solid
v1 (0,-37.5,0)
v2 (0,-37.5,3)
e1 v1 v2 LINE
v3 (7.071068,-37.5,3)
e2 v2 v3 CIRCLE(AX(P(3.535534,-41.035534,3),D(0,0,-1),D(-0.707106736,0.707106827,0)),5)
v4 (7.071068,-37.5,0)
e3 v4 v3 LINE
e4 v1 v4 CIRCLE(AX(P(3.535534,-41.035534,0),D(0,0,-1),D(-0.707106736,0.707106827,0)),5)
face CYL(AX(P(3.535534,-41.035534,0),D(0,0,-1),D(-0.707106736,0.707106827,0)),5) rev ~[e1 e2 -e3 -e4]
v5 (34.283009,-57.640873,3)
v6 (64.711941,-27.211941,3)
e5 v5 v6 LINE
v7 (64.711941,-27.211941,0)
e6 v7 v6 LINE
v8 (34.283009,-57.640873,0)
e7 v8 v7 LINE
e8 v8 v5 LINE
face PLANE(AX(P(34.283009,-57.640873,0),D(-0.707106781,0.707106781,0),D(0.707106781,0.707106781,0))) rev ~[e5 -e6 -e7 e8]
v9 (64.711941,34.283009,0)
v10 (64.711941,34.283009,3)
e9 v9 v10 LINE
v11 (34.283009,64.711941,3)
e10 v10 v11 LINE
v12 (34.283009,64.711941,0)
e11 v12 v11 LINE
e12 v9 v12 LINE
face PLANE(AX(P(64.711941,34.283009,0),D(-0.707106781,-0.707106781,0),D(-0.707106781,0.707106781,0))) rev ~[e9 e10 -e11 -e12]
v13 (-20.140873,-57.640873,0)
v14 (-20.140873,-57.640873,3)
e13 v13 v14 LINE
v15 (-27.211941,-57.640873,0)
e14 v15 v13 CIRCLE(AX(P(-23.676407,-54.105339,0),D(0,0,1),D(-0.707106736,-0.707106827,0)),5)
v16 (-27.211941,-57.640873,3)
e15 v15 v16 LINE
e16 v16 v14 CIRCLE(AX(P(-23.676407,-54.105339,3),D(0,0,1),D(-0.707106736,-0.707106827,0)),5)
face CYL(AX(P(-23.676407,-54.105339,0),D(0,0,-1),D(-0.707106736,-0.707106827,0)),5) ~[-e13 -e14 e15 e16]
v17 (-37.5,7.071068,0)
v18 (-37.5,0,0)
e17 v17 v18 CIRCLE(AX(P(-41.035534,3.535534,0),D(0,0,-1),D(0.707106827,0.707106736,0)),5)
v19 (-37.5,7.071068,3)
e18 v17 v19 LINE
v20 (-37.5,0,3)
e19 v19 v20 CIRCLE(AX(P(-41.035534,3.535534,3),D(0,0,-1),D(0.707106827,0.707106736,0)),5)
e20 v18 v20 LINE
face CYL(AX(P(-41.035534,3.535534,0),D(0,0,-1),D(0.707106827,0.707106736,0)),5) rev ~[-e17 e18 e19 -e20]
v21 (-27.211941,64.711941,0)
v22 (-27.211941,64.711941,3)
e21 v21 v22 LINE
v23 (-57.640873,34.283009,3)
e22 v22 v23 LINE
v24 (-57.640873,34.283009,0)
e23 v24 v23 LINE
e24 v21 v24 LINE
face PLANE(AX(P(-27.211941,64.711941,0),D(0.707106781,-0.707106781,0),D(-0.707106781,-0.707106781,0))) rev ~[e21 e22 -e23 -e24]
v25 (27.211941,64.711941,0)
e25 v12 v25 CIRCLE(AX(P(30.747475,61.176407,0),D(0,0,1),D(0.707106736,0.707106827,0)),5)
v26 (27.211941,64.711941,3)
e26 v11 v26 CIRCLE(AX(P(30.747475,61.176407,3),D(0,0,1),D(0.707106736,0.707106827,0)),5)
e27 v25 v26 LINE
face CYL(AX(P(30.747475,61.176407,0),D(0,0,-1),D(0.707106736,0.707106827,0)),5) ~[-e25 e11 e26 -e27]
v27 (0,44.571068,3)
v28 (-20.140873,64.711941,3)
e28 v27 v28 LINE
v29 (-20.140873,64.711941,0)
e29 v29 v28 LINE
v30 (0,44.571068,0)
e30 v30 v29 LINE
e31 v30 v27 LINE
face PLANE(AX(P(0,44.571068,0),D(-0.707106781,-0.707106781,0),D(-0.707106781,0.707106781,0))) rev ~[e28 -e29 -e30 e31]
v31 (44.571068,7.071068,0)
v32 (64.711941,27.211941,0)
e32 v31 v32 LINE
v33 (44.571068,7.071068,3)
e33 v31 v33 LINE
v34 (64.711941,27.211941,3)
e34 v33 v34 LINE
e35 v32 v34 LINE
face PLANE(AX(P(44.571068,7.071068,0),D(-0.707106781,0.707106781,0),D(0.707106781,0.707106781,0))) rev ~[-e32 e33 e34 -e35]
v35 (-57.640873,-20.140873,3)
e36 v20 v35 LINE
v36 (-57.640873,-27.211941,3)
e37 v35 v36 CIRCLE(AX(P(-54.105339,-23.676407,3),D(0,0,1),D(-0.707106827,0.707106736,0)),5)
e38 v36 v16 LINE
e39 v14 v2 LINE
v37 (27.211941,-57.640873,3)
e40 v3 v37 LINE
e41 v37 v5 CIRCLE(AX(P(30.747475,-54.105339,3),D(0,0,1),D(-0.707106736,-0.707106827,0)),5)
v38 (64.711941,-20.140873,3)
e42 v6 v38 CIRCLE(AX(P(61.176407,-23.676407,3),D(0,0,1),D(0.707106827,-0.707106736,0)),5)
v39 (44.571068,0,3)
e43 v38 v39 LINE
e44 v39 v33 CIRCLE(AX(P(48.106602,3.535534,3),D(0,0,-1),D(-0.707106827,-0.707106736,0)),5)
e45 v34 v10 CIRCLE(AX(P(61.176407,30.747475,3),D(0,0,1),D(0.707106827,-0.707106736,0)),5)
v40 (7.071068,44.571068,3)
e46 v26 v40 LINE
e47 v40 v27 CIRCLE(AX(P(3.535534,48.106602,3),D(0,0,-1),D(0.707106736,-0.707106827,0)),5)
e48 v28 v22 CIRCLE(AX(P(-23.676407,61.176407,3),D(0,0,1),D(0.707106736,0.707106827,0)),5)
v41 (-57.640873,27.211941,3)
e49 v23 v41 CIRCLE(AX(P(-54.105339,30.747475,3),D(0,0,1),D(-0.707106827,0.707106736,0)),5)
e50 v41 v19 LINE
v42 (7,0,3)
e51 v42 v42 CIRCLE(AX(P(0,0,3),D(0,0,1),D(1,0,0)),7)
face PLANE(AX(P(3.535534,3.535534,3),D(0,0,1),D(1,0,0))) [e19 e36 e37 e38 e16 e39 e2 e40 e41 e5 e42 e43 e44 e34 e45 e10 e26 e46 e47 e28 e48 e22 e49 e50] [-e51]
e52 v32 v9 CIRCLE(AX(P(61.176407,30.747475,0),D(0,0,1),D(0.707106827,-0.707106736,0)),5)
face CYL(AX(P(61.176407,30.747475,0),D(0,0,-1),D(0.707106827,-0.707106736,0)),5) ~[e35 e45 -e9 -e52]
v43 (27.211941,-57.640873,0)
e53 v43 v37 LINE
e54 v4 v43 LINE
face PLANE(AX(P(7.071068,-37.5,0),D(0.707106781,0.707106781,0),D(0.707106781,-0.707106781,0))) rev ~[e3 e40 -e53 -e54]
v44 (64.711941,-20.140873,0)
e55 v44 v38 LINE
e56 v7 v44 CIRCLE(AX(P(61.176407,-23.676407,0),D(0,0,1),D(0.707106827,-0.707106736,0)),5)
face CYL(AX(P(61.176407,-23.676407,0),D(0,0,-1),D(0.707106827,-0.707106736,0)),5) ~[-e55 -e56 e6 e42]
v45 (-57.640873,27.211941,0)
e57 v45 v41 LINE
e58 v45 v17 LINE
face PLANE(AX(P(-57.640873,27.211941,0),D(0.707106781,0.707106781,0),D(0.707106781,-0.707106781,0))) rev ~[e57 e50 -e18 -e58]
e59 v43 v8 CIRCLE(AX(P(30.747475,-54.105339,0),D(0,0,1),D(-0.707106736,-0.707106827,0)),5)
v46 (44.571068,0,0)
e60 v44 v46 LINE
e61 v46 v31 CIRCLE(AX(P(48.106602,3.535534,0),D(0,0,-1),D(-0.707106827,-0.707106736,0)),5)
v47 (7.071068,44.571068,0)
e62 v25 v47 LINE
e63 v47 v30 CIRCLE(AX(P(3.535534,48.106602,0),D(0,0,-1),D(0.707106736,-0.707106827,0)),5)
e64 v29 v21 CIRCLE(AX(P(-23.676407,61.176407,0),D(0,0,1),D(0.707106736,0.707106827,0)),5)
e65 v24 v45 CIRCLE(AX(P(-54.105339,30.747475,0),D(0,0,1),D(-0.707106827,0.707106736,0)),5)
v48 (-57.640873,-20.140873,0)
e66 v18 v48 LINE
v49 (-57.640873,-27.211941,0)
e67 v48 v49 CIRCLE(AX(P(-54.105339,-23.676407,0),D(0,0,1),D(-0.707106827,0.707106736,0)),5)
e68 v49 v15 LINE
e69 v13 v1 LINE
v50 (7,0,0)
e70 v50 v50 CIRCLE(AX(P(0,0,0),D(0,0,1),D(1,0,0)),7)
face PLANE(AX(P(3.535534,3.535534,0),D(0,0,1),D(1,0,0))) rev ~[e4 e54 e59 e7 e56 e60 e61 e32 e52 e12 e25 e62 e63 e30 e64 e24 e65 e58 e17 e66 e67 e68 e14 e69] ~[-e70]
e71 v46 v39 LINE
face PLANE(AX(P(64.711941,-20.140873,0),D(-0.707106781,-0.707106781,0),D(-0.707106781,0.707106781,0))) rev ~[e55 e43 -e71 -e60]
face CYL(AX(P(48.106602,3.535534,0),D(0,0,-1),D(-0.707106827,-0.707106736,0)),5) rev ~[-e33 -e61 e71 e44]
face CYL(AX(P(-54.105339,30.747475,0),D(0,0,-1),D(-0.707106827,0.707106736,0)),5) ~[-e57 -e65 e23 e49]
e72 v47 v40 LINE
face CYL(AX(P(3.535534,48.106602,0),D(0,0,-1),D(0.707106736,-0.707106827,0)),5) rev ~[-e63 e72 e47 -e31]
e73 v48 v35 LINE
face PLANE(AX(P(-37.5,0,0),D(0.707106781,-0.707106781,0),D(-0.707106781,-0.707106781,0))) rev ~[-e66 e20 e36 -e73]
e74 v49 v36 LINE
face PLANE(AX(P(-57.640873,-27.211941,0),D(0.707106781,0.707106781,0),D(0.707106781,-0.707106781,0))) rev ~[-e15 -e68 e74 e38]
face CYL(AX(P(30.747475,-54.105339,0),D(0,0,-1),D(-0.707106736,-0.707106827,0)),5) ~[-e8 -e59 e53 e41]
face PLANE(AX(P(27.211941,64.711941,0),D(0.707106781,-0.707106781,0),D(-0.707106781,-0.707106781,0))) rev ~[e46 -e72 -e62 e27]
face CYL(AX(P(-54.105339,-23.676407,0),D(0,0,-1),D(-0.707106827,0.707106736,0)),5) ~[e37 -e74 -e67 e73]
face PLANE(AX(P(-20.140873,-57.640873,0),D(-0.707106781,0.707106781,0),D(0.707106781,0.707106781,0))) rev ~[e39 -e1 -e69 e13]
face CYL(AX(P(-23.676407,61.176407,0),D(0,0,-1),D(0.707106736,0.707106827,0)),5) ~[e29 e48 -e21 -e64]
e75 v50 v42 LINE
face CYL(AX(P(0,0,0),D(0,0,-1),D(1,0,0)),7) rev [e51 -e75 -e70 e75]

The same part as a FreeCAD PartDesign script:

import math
import FreeCAD as App
import Part
import Sketcher
from FreeCAD import Vector
Q = App.Units.Quantity

doc = App.newDocument("Part")
body = doc.addObject("PartDesign::Body", "Body")

sketch1 = doc.addObject("Sketcher::SketchObject", "Sketch")
body.addObject(sketch1)
sketch1.AttachmentSupport = (doc.XY_Plane, [""])
sketch1.MapMode = "FlatFace"
sketch1.addGeometry([
    Part.ArcOfCircle(Part.Circle(Vector(48, 4, 0), Vector(0, 0, 1), 5), math.radians(135), math.radians(225)),
    Part.LineSegment(Vector(45, 7, 0), Vector(65, 27, 0)),
    Part.ArcOfCircle(Part.Circle(Vector(61, 31, 0), Vector(0, 0, 1), 5), math.radians(-45), math.radians(45)),
    Part.LineSegment(Vector(65, 34, 0), Vector(34, 65, 0)),
    Part.ArcOfCircle(Part.Circle(Vector(31, 61, 0), Vector(0, 0, 1), 5), math.radians(45), math.radians(135)),
    Part.LineSegment(Vector(27, 65, 0), Vector(7, 45, 0)),
    Part.ArcOfCircle(Part.Circle(Vector(4, 48, 0), Vector(0, 0, 1), 5), math.radians(-135), math.radians(-45)),
    Part.LineSegment(Vector(0, 45, 0), Vector(-20, 65, 0)),
    Part.ArcOfCircle(Part.Circle(Vector(-24, 61, 0), Vector(0, 0, 1), 5), math.radians(45), math.radians(135)),
    Part.LineSegment(Vector(-27, 65, 0), Vector(-58, 34, 0)),
    Part.ArcOfCircle(Part.Circle(Vector(-54, 31, 0), Vector(0, 0, 1), 5), math.radians(135), math.radians(225)),
    Part.LineSegment(Vector(-58, 27, 0), Vector(-38, 7, 0)),
    Part.ArcOfCircle(Part.Circle(Vector(-41, 4, 0), Vector(0, 0, 1), 5), math.radians(-45), math.radians(45)),
    Part.LineSegment(Vector(-38, 0, 0), Vector(-58, -20, 0)),
    Part.ArcOfCircle(Part.Circle(Vector(-54, -24, 0), Vector(0, 0, 1), 5), math.radians(135), math.radians(225)),
    Part.LineSegment(Vector(-58, -27, 0), Vector(-27, -58, 0)),
    Part.ArcOfCircle(Part.Circle(Vector(-24, -54, 0), Vector(0, 0, 1), 5), math.radians(-135), math.radians(-45)),
    Part.LineSegment(Vector(-20, -58, 0), Vector(0, -38, 0)),
    Part.ArcOfCircle(Part.Circle(Vector(4, -41, 0), Vector(0, 0, 1), 5), math.radians(45), math.radians(135)),
    Part.LineSegment(Vector(7, -38, 0), Vector(27, -58, 0)),
    Part.ArcOfCircle(Part.Circle(Vector(31, -54, 0), Vector(0, 0, 1), 5), math.radians(-135), math.radians(-45)),
    Part.LineSegment(Vector(34, -58, 0), Vector(65, -27, 0)),
    Part.ArcOfCircle(Part.Circle(Vector(61, -24, 0), Vector(0, 0, 1), 5), math.radians(-45), math.radians(45)),
    Part.LineSegment(Vector(65, -20, 0), Vector(45, 0, 0)),
    Part.Circle(Vector(0, 0, 0), Vector(0, 0, 1), 7),
], False)
sketch1.addConstraint([
    Sketcher.Constraint("Tangent", 0, 1, 1, 1),
    Sketcher.Constraint("Tangent", 1, 2, 2, 1),
    Sketcher.Constraint("Tangent", 2, 2, 3, 1),
    Sketcher.Constraint("Tangent", 3, 2, 4, 1),
    Sketcher.Constraint("Tangent", 4, 2, 5, 1),
    Sketcher.Constraint("Tangent", 5, 2, 6, 2),
    Sketcher.Constraint("Tangent", 6, 1, 7, 1),
    Sketcher.Constraint("Tangent", 7, 2, 8, 1),
    Sketcher.Constraint("Tangent", 8, 2, 9, 1),
    Sketcher.Constraint("Tangent", 9, 2, 10, 1),
    Sketcher.Constraint("Tangent", 10, 2, 11, 1),
    Sketcher.Constraint("Tangent", 11, 2, 12, 2),
    Sketcher.Constraint("Tangent", 12, 1, 13, 1),
    Sketcher.Constraint("Tangent", 13, 2, 14, 1),
    Sketcher.Constraint("Tangent", 14, 2, 15, 1),
    Sketcher.Constraint("Tangent", 15, 2, 16, 1),
    Sketcher.Constraint("Tangent", 16, 2, 17, 1),
    Sketcher.Constraint("Tangent", 17, 2, 18, 2),
    Sketcher.Constraint("Tangent", 18, 1, 19, 1),
    Sketcher.Constraint("Tangent", 19, 2, 20, 1),
    Sketcher.Constraint("Tangent", 20, 2, 21, 1),
    Sketcher.Constraint("Tangent", 21, 2, 22, 1),
    Sketcher.Constraint("Tangent", 22, 2, 23, 1),
    Sketcher.Constraint("Tangent", 23, 2, 0, 2),
    Sketcher.Constraint("Coincident", 24, 3, -1, 1),
    Sketcher.Constraint("Equal", 0, 2),
    Sketcher.Constraint("Equal", 2, 4),
    Sketcher.Constraint("Equal", 4, 6),
    Sketcher.Constraint("Equal", 6, 8),
    Sketcher.Constraint("Equal", 8, 10),
    Sketcher.Constraint("Equal", 10, 12),
    Sketcher.Constraint("Equal", 12, 14),
    Sketcher.Constraint("Equal", 14, 16),
    Sketcher.Constraint("Equal", 16, 18),
    Sketcher.Constraint("Equal", 18, 20),
    Sketcher.Constraint("Equal", 20, 22),
    Sketcher.Constraint("Symmetric", 4, 2, 8, 2, -2),
    Sketcher.Constraint("Symmetric", 15, 2, 19, 2, -2),
    Sketcher.Constraint("Symmetric", 10, 2, 14, 2, -1),
    Sketcher.Constraint("Symmetric", 1, 2, 21, 2, -1),
    Sketcher.Constraint("PointOnObject", 6, 1, -2),
    Sketcher.Constraint("PointOnObject", 12, 1, -1),
    Sketcher.Constraint("PointOnObject", 17, 2, -2),
    Sketcher.Constraint("PointOnObject", 23, 2, -1),
    Sketcher.Constraint("Perpendicular", 1, 3),
    Sketcher.Constraint("Perpendicular", 3, 5),
    Sketcher.Constraint("Perpendicular", 5, 7),
    Sketcher.Constraint("Perpendicular", 7, 9),
    Sketcher.Constraint("Perpendicular", 9, 11),
    Sketcher.Constraint("Perpendicular", 11, 13),
    Sketcher.Constraint("Perpendicular", 15, 17),
    Sketcher.Constraint("Horizontal", 2, 3, 10, 3),
    Sketcher.Constraint("Vertical", 8, 3, 16, 3),
    Sketcher.Constraint("Equal", 1, 5),
    Sketcher.Constraint("Diameter", 24, Q("14 mm")),
    Sketcher.Constraint("Radius", 0, Q("5 mm")),
    Sketcher.Constraint("DistanceX", 11, 2, -1, 1, Q("37.5 mm")),
    Sketcher.Constraint("DistanceX", 10, 3, -1, 1, Q("54.105339 mm")),
])
pad1 = doc.addObject("PartDesign::Pad", "Pad")
body.addObject(pad1)
pad1.Profile = sketch1
pad1.Length = 3

doc.recompute()
